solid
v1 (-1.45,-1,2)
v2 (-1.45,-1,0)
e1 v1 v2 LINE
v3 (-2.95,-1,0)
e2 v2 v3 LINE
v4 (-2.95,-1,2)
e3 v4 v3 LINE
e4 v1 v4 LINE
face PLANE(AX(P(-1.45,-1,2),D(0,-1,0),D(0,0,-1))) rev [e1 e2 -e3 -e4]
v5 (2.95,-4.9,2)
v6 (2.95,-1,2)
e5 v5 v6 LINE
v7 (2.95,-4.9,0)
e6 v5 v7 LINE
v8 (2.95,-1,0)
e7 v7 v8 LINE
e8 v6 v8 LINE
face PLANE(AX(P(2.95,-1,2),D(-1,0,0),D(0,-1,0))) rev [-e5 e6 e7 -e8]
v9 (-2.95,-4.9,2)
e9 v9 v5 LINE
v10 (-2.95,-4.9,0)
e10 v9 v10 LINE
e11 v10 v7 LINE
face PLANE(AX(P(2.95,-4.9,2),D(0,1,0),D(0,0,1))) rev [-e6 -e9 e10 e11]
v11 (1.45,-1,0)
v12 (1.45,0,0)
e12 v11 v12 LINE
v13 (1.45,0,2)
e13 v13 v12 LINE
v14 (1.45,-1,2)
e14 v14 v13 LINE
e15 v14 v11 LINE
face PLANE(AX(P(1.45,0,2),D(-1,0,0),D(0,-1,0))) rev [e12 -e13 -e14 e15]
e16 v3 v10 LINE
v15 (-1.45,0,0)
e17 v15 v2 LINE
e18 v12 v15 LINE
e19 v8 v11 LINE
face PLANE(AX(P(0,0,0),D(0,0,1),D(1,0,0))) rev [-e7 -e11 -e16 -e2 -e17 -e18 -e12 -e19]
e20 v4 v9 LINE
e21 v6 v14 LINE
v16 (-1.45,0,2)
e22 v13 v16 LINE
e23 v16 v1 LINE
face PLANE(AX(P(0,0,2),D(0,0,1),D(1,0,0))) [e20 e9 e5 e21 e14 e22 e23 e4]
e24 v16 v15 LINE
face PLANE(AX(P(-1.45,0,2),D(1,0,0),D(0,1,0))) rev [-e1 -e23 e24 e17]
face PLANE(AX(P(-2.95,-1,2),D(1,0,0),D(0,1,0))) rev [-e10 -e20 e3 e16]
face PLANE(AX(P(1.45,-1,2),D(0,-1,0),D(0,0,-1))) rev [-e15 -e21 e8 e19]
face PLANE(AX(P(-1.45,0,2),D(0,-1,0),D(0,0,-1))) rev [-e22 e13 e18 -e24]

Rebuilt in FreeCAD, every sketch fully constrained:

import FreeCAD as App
import Part
import Sketcher
Q = App.Units.Quantity

doc = App.newDocument("Part")
body = doc.addObject("PartDesign::Body", "Body")

sketch1 = doc.addObject("Sketcher::SketchObject", "Sketch")
body.addObject(sketch1)
sketch1.AttachmentSupport = (doc.XY_Plane, [""])
sketch1.MapMode = "FlatFace"
sketch1.addGeometry([
    Part.LineSegment(App.Vector(1.45, 0, 0), App.Vector(-1.45, 0, 0)),
    Part.LineSegment(App.Vector(-1.45, 0, 0), App.Vector(-1.45, -1, 0)),
    Part.LineSegment(App.Vector(-1.45, -1, 0), App.Vector(-2.95, -1, 0)),
    Part.LineSegment(App.Vector(-2.95, -1, 0), App.Vector(-2.95, -4.9, 0)),
    Part.LineSegment(App.Vector(-2.95, -4.9, 0), App.Vector(2.95, -4.9, 0)),
    Part.LineSegment(App.Vector(2.95, -4.9, 0), App.Vector(2.95, -1, 0)),
    Part.LineSegment(App.Vector(2.95, -1, 0), App.Vector(1.45, -1, 0)),
    Part.LineSegment(App.Vector(1.45, -1, 0), App.Vector(1.45, 0, 0)),
], False)
sketch1.addConstraint([
    Sketcher.Constraint("Coincident", 0, 2, 1, 1),
    Sketcher.Constraint("Coincident", 1, 2, 2, 1),
    Sketcher.Constraint("Coincident", 2, 2, 3, 1),
    Sketcher.Constraint("Coincident", 3, 2, 4, 1),
    Sketcher.Constraint("Coincident", 4, 2, 5, 1),
    Sketcher.Constraint("Coincident", 5, 2, 6, 1),
    Sketcher.Constraint("Coincident", 6, 2, 7, 1),
    Sketcher.Constraint("Coincident", 7, 2, 0, 1),
    Sketcher.Constraint("Horizontal", 0),
    Sketcher.Constraint("Vertical", 1),
    Sketcher.Constraint("Horizontal", 2),
    Sketcher.Constraint("Vertical", 3),
    Sketcher.Constraint("Horizontal", 4),
    Sketcher.Constraint("Vertical", 5),
    Sketcher.Constraint("Horizontal", 6),
    Sketcher.Constraint("Vertical", 7),
    Sketcher.Constraint("Symmetric", 0, 2, 7, 2, -1, 1),
    Sketcher.Constraint("Symmetric", 2, 2, 5, 2, -2),
    Sketcher.Constraint("DistanceY", 1, 2, 1, 1, Q("1 mm")),
    Sketcher.Constraint("DistanceX", 0, 2, 0, 1, Q("2.9 mm")),
    Sketcher.Constraint("DistanceX", 2, 2, 2, 1, Q("1.5 mm")),
    Sketcher.Constraint("DistanceY", 3, 2, 3, 1, Q("3.9 mm")),
])
pad1 = doc.addObject("PartDesign::Pad", "Pad")
body.addObject(pad1)
pad1.Profile = sketch1
pad1.Length = 2

doc.recompute()
